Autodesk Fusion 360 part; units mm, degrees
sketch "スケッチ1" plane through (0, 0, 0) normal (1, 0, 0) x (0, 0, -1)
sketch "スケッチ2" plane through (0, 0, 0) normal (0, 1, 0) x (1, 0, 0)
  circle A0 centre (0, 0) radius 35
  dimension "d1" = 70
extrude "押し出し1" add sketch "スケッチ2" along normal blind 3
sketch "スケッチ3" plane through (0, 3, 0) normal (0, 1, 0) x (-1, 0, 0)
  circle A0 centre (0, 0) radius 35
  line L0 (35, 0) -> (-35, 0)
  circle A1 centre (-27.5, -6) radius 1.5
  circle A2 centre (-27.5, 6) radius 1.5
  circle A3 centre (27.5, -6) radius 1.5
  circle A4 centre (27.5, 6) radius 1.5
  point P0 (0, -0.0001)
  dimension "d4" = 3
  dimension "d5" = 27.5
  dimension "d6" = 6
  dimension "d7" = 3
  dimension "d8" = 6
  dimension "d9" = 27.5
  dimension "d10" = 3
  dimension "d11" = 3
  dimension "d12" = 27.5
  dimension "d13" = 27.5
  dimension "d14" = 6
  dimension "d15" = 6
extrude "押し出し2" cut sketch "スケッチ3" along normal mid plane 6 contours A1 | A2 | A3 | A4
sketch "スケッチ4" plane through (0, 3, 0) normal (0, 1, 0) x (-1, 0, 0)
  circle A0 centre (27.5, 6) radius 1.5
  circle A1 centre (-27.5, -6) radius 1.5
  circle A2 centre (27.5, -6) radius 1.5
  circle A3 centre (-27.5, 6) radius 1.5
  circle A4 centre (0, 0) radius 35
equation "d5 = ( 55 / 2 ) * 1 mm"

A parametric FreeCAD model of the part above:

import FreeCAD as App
import Part
import Sketcher

V = App.Vector
Q = App.Units.Quantity

doc = App.newDocument("Part")
params = doc.addObject("Spreadsheet::Sheet", "Params")
for row, (alias, value) in enumerate([
    ("sketch1_diameter", "70 mm"),
    ("pad1_length", "3 mm"),
    ("sketch2_diameter", "3 mm"),
    ("pocket1_length", "6 mm"),
], start=1):
    params.set(f"A{row}", alias)
    params.set(f"B{row}", "=" + value)
    params.setAlias(f"B{row}", alias)

body = doc.addObject("PartDesign::Body", "Body")

# Sketch on XZ plane
sketch1 = body.newObject("Sketcher::SketchObject", "Sketch")
sketch1.AttachmentSupport = (doc.getObject("XZ_Plane"), [""])
sketch1.MapMode = "FlatFace"
sketch1.addGeometry(Part.Circle(V(0, 0, 0), V(0, 0, 1), 35), False)
sketch1.addConstraint(Sketcher.Constraint("Coincident", 0, 3, -1, 1))
sketch1.addConstraint(Sketcher.Constraint("Diameter", 0, Q("70 mm")))
sketch1.setExpression("Constraints[1]", "Params.sketch1_diameter")
pad1 = body.newObject("PartDesign::Pad", "Pad")
pad1.Profile = sketch1
pad1.setExpression("Length", "Params.pad1_length")
pad1.Reversed = True

# Sketch on XZ plane
sketch2 = body.newObject("Sketcher::SketchObject", "Sketch001")
sketch2.AttachmentSupport = (doc.getObject("XZ_Plane"), [""])
sketch2.MapMode = "FlatFace"
sketch2.AttachmentOffset = App.Placement(V(0, 0, -3), App.Rotation())
sketch2.addGeometry(Part.Circle(V(27.5, -6, 0), V(0, 0, 1), 1.5), False)
sketch2.addGeometry(Part.Circle(V(27.5, 6, 0), V(0, 0, 1), 1.5), False)
sketch2.addGeometry(Part.Circle(V(-27.5, -6, 0), V(0, 0, 1), 1.5), False)
sketch2.addGeometry(Part.Circle(V(-27.5, 6, 0), V(0, 0, 1), 1.5), False)
sketch2.addConstraint(Sketcher.Constraint("Equal", 0, 1))
sketch2.addConstraint(Sketcher.Constraint("Equal", 1, 2))
sketch2.addConstraint(Sketcher.Constraint("Equal", 2, 3))
sketch2.addConstraint(Sketcher.Constraint("Symmetric", 1, 3, 2, 3, -1, 1))
sketch2.addConstraint(Sketcher.Constraint("Symmetric", 0, 3, 3, 3, -1, 1))
sketch2.addConstraint(Sketcher.Constraint("Symmetric", 0, 3, 2, 3, -2))
sketch2.addConstraint(Sketcher.Constraint("Diameter", 0, Q("3 mm")))
sketch2.addConstraint(Sketcher.Constraint("DistanceY", 0, 3, -1, 1, Q("6 mm")))
sketch2.addConstraint(Sketcher.Constraint("DistanceX", -1, 1, 0, 3, Q("27.5 mm")))
sketch2.setExpression("Constraints[6]", "Params.sketch2_diameter")
pocket1 = body.newObject("PartDesign::Pocket", "Pocket")
pocket1.Profile = sketch2
pocket1.setExpression("Length", "Params.pocket1_length")
pocket1.Midplane = True

doc.recompute()
